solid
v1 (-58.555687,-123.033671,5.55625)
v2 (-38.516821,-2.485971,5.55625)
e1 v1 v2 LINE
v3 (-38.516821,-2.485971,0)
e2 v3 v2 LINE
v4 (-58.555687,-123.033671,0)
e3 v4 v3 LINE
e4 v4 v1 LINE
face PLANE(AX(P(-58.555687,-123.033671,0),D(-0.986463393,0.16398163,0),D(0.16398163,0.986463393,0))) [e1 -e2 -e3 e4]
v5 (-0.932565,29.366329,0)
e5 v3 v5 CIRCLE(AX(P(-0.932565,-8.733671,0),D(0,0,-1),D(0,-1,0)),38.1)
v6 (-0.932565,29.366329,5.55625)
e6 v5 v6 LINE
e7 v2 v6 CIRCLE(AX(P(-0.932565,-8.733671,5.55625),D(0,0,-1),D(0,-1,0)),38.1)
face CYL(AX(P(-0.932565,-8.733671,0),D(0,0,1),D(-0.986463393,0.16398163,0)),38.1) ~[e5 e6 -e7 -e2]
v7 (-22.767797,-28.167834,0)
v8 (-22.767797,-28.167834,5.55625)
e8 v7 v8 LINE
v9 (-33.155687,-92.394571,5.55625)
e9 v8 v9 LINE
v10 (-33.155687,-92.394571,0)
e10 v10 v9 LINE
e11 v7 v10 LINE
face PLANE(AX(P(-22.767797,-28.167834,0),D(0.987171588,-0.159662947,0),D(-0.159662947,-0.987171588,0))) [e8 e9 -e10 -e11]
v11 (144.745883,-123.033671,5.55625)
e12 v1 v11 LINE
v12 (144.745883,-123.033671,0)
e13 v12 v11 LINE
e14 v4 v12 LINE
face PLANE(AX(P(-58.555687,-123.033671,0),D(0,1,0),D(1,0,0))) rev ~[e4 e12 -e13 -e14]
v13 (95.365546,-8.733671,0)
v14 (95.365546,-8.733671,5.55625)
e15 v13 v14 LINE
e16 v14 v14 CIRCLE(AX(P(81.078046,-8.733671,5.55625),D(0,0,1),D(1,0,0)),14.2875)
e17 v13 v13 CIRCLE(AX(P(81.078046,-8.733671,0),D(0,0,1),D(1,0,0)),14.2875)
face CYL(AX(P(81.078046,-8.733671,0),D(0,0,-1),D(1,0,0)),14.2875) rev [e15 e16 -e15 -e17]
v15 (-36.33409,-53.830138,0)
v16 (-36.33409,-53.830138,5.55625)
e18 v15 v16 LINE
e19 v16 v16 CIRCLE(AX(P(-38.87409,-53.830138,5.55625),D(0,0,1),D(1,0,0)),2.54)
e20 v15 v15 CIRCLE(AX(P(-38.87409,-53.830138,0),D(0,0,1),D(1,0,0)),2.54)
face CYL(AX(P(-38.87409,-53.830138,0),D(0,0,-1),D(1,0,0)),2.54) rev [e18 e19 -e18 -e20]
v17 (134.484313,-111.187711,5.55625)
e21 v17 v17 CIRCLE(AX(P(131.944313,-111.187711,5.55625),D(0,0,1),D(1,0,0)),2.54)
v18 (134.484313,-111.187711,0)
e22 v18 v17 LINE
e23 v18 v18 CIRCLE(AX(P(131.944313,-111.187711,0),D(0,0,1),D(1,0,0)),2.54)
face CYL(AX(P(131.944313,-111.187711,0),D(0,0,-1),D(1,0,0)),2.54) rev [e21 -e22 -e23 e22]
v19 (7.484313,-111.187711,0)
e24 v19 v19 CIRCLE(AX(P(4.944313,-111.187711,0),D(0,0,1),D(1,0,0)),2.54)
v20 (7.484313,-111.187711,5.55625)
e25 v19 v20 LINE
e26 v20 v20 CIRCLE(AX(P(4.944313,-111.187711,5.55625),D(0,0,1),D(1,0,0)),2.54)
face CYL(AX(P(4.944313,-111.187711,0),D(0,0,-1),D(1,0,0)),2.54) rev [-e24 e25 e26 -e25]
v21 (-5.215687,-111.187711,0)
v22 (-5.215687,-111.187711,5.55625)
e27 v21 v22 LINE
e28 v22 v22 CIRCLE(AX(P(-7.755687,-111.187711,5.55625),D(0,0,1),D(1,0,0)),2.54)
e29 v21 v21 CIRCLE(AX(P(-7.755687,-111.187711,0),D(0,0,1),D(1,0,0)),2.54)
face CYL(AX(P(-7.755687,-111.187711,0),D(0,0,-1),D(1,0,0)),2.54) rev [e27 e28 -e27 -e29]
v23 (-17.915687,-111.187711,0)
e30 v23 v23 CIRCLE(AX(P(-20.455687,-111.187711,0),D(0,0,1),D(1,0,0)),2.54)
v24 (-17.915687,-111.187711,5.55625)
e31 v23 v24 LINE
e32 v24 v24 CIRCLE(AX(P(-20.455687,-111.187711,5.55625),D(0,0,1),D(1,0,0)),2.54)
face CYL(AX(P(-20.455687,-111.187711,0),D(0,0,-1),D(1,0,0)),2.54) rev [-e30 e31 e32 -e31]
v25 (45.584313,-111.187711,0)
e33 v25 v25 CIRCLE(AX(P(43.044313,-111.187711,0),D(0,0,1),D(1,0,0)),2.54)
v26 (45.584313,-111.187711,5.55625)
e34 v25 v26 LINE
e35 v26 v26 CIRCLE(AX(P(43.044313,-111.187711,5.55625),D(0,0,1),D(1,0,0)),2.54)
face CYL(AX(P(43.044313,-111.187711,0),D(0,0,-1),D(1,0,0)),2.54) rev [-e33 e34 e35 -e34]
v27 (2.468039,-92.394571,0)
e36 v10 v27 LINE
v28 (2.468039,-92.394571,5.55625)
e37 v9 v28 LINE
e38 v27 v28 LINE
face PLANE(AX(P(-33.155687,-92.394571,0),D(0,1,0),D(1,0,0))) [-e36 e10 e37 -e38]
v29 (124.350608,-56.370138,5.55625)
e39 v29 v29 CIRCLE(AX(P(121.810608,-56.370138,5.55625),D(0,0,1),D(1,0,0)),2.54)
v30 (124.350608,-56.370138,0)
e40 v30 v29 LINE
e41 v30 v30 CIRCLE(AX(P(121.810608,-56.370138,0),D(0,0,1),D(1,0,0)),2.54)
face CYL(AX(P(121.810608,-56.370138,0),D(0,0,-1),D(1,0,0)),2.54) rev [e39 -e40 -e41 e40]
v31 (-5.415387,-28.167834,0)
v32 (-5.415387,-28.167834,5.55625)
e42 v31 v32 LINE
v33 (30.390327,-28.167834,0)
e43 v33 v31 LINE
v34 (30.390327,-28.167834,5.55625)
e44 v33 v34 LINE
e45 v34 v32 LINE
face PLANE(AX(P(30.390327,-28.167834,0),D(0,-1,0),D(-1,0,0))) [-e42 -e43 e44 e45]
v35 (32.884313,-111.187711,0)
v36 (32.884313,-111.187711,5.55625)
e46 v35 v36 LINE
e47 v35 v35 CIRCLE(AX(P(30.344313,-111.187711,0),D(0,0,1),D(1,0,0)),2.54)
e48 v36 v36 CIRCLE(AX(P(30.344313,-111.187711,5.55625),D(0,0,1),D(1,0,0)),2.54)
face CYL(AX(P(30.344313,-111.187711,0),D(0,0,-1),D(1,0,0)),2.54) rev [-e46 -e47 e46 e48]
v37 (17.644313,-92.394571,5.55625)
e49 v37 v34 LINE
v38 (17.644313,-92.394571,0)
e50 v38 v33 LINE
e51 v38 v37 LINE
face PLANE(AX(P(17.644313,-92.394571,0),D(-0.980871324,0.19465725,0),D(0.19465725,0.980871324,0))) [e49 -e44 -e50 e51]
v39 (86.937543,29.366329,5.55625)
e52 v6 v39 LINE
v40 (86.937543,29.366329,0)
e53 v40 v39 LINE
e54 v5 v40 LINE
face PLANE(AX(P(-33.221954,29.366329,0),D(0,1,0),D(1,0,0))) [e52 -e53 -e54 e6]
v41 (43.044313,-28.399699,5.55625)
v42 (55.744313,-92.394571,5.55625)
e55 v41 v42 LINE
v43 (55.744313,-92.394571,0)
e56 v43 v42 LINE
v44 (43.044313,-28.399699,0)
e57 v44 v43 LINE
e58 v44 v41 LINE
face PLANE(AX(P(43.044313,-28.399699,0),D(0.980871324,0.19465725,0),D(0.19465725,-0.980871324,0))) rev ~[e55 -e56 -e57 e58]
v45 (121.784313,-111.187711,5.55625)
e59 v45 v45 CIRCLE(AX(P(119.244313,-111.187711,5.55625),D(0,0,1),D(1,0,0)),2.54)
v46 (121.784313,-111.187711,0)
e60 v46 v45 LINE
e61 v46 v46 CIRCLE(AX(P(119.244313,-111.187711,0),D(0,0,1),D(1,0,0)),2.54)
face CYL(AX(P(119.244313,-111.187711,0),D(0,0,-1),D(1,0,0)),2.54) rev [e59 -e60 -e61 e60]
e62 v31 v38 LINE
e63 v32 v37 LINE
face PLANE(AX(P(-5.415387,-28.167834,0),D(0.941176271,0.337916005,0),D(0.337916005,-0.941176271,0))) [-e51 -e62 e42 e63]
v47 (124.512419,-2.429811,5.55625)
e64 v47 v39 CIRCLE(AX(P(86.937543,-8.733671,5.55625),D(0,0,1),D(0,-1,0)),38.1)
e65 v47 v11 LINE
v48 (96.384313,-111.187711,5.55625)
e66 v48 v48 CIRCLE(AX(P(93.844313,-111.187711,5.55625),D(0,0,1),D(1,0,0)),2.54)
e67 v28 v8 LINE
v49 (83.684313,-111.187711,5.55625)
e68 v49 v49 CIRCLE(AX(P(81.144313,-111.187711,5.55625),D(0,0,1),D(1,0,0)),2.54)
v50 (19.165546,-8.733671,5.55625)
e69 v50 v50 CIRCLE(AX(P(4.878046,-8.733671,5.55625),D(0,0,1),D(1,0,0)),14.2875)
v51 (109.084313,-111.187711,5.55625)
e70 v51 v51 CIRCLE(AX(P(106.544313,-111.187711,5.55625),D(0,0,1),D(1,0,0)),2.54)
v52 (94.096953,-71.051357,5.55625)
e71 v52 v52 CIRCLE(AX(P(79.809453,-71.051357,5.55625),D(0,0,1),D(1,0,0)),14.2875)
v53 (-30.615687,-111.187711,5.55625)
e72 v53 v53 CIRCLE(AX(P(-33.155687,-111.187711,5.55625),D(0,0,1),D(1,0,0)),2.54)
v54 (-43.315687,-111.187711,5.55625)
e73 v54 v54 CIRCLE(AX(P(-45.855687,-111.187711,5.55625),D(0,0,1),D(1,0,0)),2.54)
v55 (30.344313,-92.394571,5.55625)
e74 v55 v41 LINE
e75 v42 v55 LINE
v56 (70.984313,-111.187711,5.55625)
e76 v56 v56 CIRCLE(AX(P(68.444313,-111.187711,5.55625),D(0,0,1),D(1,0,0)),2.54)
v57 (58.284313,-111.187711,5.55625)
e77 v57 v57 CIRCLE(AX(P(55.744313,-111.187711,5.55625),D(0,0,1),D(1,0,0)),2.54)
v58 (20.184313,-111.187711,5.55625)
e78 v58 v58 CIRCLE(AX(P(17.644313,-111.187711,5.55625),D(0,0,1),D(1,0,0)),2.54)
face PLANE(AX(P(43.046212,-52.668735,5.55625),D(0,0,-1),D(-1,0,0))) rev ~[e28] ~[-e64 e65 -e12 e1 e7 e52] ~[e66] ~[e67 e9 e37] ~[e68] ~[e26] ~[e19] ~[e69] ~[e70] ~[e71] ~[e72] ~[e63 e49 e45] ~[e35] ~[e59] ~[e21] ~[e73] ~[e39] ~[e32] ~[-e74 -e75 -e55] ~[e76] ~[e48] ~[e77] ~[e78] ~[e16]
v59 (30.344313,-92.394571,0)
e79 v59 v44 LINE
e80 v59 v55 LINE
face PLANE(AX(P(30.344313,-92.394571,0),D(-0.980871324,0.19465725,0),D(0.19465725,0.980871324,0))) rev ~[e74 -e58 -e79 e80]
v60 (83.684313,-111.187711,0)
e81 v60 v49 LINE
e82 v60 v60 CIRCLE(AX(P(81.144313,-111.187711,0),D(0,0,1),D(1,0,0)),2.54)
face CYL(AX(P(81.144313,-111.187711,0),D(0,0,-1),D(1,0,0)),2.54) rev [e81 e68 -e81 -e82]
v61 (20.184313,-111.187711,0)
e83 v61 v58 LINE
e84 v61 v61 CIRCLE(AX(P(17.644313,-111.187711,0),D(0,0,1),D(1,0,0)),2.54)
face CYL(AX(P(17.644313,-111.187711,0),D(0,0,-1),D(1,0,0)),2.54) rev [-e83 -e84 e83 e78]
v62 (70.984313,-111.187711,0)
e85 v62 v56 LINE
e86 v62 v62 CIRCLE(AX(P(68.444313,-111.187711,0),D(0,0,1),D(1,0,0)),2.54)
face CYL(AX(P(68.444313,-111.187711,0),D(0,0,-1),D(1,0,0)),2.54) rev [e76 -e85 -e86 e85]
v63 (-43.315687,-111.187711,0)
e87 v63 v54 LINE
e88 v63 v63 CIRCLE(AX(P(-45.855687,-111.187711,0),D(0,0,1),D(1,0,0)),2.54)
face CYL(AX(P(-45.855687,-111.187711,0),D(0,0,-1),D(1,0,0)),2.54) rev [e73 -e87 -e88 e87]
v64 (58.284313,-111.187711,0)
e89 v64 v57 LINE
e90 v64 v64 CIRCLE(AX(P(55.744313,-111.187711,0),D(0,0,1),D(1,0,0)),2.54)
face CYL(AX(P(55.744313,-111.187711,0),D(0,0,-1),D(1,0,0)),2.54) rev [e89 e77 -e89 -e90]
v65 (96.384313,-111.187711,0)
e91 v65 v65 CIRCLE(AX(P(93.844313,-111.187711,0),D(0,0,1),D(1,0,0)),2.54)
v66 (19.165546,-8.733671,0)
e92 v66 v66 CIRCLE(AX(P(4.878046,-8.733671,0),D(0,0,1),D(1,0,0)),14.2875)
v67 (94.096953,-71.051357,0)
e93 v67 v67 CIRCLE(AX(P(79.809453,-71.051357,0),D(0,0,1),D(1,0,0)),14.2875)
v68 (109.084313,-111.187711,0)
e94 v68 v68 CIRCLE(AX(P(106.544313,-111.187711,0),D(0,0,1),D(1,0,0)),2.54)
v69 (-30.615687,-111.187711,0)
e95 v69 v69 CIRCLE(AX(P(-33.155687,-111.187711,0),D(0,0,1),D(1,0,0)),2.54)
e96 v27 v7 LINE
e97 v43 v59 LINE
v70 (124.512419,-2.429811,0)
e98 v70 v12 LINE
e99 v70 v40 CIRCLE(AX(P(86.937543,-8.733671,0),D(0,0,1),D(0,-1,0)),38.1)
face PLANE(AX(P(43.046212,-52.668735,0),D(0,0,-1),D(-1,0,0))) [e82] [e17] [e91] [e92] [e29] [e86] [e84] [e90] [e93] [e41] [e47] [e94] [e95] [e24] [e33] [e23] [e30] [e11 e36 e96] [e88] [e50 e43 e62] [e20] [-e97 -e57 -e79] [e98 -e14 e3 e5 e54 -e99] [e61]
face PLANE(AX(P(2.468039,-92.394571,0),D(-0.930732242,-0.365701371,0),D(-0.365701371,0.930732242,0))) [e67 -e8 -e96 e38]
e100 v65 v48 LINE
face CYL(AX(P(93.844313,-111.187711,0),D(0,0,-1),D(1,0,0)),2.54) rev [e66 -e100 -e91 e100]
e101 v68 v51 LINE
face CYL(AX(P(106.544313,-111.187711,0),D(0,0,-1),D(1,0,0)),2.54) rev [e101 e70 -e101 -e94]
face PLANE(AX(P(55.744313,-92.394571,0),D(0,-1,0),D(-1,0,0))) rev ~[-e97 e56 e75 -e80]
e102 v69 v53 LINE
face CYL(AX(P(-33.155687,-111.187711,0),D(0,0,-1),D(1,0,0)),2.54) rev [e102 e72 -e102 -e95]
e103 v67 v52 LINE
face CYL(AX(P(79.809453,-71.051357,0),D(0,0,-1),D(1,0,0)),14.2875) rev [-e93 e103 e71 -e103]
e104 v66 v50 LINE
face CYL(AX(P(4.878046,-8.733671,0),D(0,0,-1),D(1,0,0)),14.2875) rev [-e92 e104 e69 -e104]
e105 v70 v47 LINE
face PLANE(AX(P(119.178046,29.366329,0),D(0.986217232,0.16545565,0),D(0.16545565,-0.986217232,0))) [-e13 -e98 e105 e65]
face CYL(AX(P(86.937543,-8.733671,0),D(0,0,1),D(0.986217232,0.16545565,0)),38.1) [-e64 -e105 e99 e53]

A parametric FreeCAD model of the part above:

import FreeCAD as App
import Part
import Sketcher

V = App.Vector
Q = App.Units.Quantity


def edges_at(feature, points):
    """Names of the edges that pass closest to the given points."""
    edges = feature.Shape.Edges
    near = lambda p: min(range(len(edges)), key=lambda i: edges[i].distToShape(Part.Vertex(*p))[0])
    return sorted({f"Edge{near(p) + 1}" for p in points})

doc = App.newDocument("Part")
body = doc.addObject("PartDesign::Body", "Body")

# Sketch on XY plane
sketch1 = body.newObject("Sketcher::SketchObject", "Sketch")
sketch1.AttachmentSupport = (doc.getObject("XY_Plane"), [""])
sketch1.MapMode = "FlatFace"
sketch1.addGeometry([
    Part.LineSegment(V(-58.555687, -123.033671, 0), V(144.745883, -123.033671, 0)),  # 0
    Part.LineSegment(V(144.745883, -123.033671, 0), V(119.178046, 29.366329, 0)),  # 1
    Part.LineSegment(V(119.178046, 29.366329, 0), V(-33.221954, 29.366329, 0)),  # 2
    Part.LineSegment(V(-33.221954, 29.366329, 0), V(-58.555687, -123.033671, 0)),  # 3
    Part.Circle(V(131.944313, -111.187711, 0), V(0, 0, 1), 2.54),  # 4
    Part.Circle(V(119.244313, -111.187711, 0), V(0, 0, 1), 2.54),  # 5
    Part.Circle(V(106.544313, -111.187711, 0), V(0, 0, 1), 2.54),  # 6
    Part.Circle(V(93.844313, -111.187711, 0), V(0, 0, 1), 2.54),  # 7
    Part.Circle(V(81.144313, -111.187711, 0), V(0, 0, 1), 2.54),  # 8
    Part.Circle(V(68.444313, -111.187711, 0), V(0, 0, 1), 2.54),  # 9
    Part.Circle(V(55.744313, -111.187711, 0), V(0, 0, 1), 2.54),  # 10
    Part.Circle(V(121.810608, -56.370138, 0), V(0, 0, 1), 2.54),  # 11
    Part.Circle(V(79.809453, -71.051357, 0), V(0, 0, 1), 14.2875),  # 12
    Part.Circle(V(43.044313, -111.187711, 0), V(0, 0, 1), 2.54),  # 13
    Part.Circle(V(30.344313, -111.187711, 0), V(0, 0, 1), 2.54),  # 14
    Part.Circle(V(17.644313, -111.187711, 0), V(0, 0, 1), 2.54),  # 15
    Part.Circle(V(4.944313, -111.187711, 0), V(0, 0, 1), 2.54),  # 16
    Part.Circle(V(-7.755687, -111.187711, 0), V(0, 0, 1), 2.54),  # 17
    Part.Circle(V(-20.455687, -111.187711, 0), V(0, 0, 1), 2.54),  # 18
    Part.Circle(V(-33.155687, -111.187711, 0), V(0, 0, 1), 2.54),  # 19
    Part.Circle(V(-45.855687, -111.187711, 0), V(0, 0, 1), 2.54),  # 20
    Part.LineSegment(V(43.044313, -28.399699, 0), V(55.744313, -92.394571, 0)),  # 21
    Part.LineSegment(V(55.744313, -92.394571, 0), V(30.344313, -92.394571, 0)),  # 22
    Part.LineSegment(V(30.344313, -92.394571, 0), V(43.044313, -28.399699, 0)),  # 23
    Part.LineSegment(V(17.644313, -92.394571, 0), V(-5.415387, -28.167834, 0)),  # 24
    Part.LineSegment(V(-5.415387, -28.167834, 0), V(30.390327, -28.167834, 0)),  # 25
    Part.LineSegment(V(30.390327, -28.167834, 0), V(17.644313, -92.394571, 0)),  # 26
    Part.LineSegment(V(-22.767797, -28.167834, 0), V(2.468039, -92.394571, 0)),  # 27
    Part.LineSegment(V(2.468039, -92.394571, 0), V(-33.155687, -92.394571, 0)),  # 28
    Part.LineSegment(V(-33.155687, -92.394571, 0), V(-22.767797, -28.167834, 0)),  # 29
    Part.Circle(V(81.078046, -8.733671, 0), V(0, 0, 1), 14.2875),  # 30
    Part.Circle(V(-38.87409, -53.830138, 0), V(0, 0, 1), 2.54),  # 31
    Part.Circle(V(4.878046, -8.733671, 0), V(0, 0, 1), 14.2875),  # 32
], False)
sketch1.addConstraint([
    Sketcher.Constraint("Coincident", 0, 2, 1, 1),
    Sketcher.Constraint("Coincident", 1, 2, 2, 1),
    Sketcher.Constraint("Coincident", 2, 2, 3, 1),
    Sketcher.Constraint("Coincident", 3, 2, 0, 1),
    Sketcher.Constraint("Coincident", 21, 2, 22, 1),
    Sketcher.Constraint("Coincident", 22, 2, 23, 1),
    Sketcher.Constraint("Coincident", 23, 2, 21, 1),
    Sketcher.Constraint("Coincident", 24, 2, 25, 1),
    Sketcher.Constraint("Coincident", 25, 2, 26, 1),
    Sketcher.Constraint("Coincident", 26, 2, 24, 1),
    Sketcher.Constraint("Coincident", 27, 2, 28, 1),
    Sketcher.Constraint("Coincident", 28, 2, 29, 1),
    Sketcher.Constraint("Coincident", 29, 2, 27, 1),
    Sketcher.Constraint("Horizontal", 0),
    Sketcher.Constraint("Horizontal", 2),
    Sketcher.Constraint("Horizontal", 22),
    Sketcher.Constraint("Horizontal", 25),
    Sketcher.Constraint("Horizontal", 28),
    Sketcher.Constraint("Equal", 4, 5),
    Sketcher.Constraint("Equal", 5, 6),
    Sketcher.Constraint("Equal", 6, 7),
    Sketcher.Constraint("Equal", 7, 8),
    Sketcher.Constraint("Equal", 8, 9),
    Sketcher.Constraint("Equal", 9, 10),
    Sketcher.Constraint("Equal", 10, 11),
    Sketcher.Constraint("Equal", 11, 13),
    Sketcher.Constraint("Equal", 13, 14),
    Sketcher.Constraint("Equal", 14, 15),
    Sketcher.Constraint("Equal", 15, 16),
    Sketcher.Constraint("Equal", 16, 17),
    Sketcher.Constraint("Equal", 17, 18),
    Sketcher.Constraint("Equal", 18, 19),
    Sketcher.Constraint("Equal", 19, 20),
    Sketcher.Constraint("Equal", 12, 30),
    Sketcher.Constraint("Equal", 20, 31),
    Sketcher.Constraint("Equal", 30, 32),
    Sketcher.Constraint("Parallel", 23, 26),
    Sketcher.Constraint("Horizontal", 4, 3, 5, 3),
    Sketcher.Constraint("Horizontal", 5, 3, 6, 3),
    Sketcher.Constraint("Horizontal", 6, 3, 7, 3),
    Sketcher.Constraint("Horizontal", 7, 3, 8, 3),
    Sketcher.Constraint("Horizontal", 8, 3, 9, 3),
    Sketcher.Constraint("Horizontal", 9, 3, 10, 3),
    Sketcher.Constraint("Horizontal", 10, 3, 13, 3),
    Sketcher.Constraint("Horizontal", 13, 3, 14, 3),
    Sketcher.Constraint("Horizontal", 14, 3, 15, 3),
    Sketcher.Constraint("Horizontal", 15, 3, 16, 3),
    Sketcher.Constraint("Horizontal", 16, 3, 17, 3),
    Sketcher.Constraint("Horizontal", 17, 3, 18, 3),
    Sketcher.Constraint("Horizontal", 18, 3, 19, 3),
    Sketcher.Constraint("Horizontal", 19, 3, 20, 3),
    Sketcher.Constraint("Horizontal", 30, 3, 32, 3),
    Sketcher.Constraint("Horizontal", 22, 2, 26, 2),
    Sketcher.Constraint("Horizontal", 26, 2, 27, 2),
    Sketcher.Constraint("Horizontal", 25, 2, 29, 2),
    Sketcher.Constraint("Vertical", 10, 3, 21, 2),
    Sketcher.Constraint("Vertical", 14, 3, 22, 2),
    Sketcher.Constraint("Vertical", 13, 3, 23, 2),
    Sketcher.Constraint("Vertical", 15, 3, 26, 2),
    Sketcher.Constraint("Vertical", 19, 3, 28, 2),
    Sketcher.Constraint("Equal", 21, 23),
    Sketcher.Constraint("Diameter", 4, Q("0.2 in")),
    Sketcher.Constraint("DistanceX", 2, 2, 2, 1, Q("6 in")),
    Sketcher.Constraint("DistanceX", 22, 2, 22, 1, Q("1 in")),
    Sketcher.Constraint("Diameter", 12, Q("1.125 in")),
    Sketcher.Constraint("DistanceX", 6, 3, 4, 3, Q("1 in")),
    Sketcher.Constraint("DistanceX", 7, 3, 5, 3, Q("1 in")),
    Sketcher.Constraint("DistanceX", 8, 3, 6, 3, Q("1 in")),
    Sketcher.Constraint("DistanceX", 9, 3, 7, 3, Q("1 in")),
    Sketcher.Constraint("DistanceX", 10, 3, 8, 3, Q("1 in")),
    Sketcher.Constraint("DistanceX", 13, 3, 9, 3, Q("1 in")),
    Sketcher.Constraint("DistanceX", 15, 3, 13, 3, Q("1 in")),
    Sketcher.Constraint("DistanceX", 16, 3, 14, 3, Q("1 in")),
    Sketcher.Constraint("DistanceX", 17, 3, 15, 3, Q("1 in")),
    Sketcher.Constraint("DistanceX", 18, 3, 16, 3, Q("1 in")),
    Sketcher.Constraint("DistanceX", 19, 3, 17, 3, Q("1 in")),
    Sketcher.Constraint("DistanceX", 20, 3, 18, 3, Q("1 in")),
    Sketcher.Constraint("DistanceX", 32, 3, 30, 3, Q("3 in")),
    Sketcher.Constraint("DistanceX", 3, 2, 19, 3, Q("1 in")),
    Sketcher.Constraint("DistanceX", 30, 3, 1, 2, Q("1.5 in")),
    Sketcher.Constraint("DistanceY", 30, 3, 1, 2, Q("1.5 in")),
    Sketcher.Constraint("DistanceX", 0, 1, 0, 2, Q("203.30157 mm")),
    Sketcher.Constraint("DistanceY", 23, 2, -1, 1, Q("28.399699 mm")),
    Sketcher.Constraint("DistanceX", 24, 2, 23, 2, Q("48.4597 mm")),
    Sketcher.Constraint("Distance", 1, Q("154.529849 mm")),
    Sketcher.Constraint("Distance", 26, Q("65.479269 mm")),
    Sketcher.Constraint("Distance", 29, Q("65.061372 mm")),
    Sketcher.Constraint("DistanceX", 25, 1, 25, 2, Q("35.805715 mm")),
    Sketcher.Constraint("DistanceX", 28, 2, 28, 1, Q("35.623726 mm")),
    Sketcher.Constraint("DistanceY", 4, 3, -1, 1, Q("111.187711 mm")),
    Sketcher.Constraint("DistanceY", 30, 3, -1, 1, Q("8.733671 mm")),
    Sketcher.Constraint("DistanceX", 31, 3, -1, 1, Q("38.87409 mm")),
    Sketcher.Constraint("DistanceY", 0, 2, -1, 1, Q("123.033671 mm")),
    Sketcher.Constraint("DistanceX", -1, 1, 27, 2, Q("2.468039 mm")),
    Sketcher.Constraint("DistanceX", 12, 3, 8, 3, Q("1.334859 mm")),
    Sketcher.Constraint("DistanceY", 12, 3, 11, 3, Q("14.681219 mm")),
    Sketcher.Constraint("DistanceX", 30, 3, 11, 3, Q("40.732562 mm")),
    Sketcher.Constraint("DistanceY", 11, 3, -1, 1, Q("56.370138 mm")),
    Sketcher.Constraint("DistanceY", 31, 3, -1, 1, Q("53.830138 mm")),
])
pad1 = body.newObject("PartDesign::Pad", "Pad")
pad1.Profile = sketch1
pad1.Length = Q("0.21875 in")
doc.recompute()

fillet = body.newObject("PartDesign::Fillet", "Fillet")
fillet.Base = (pad1, edges_at(pad1, [(-33.222, 29.366, 2.778), (119.178, 29.366, 2.778)]))
fillet.Radius = Q("1.5 in")

doc.recompute()
